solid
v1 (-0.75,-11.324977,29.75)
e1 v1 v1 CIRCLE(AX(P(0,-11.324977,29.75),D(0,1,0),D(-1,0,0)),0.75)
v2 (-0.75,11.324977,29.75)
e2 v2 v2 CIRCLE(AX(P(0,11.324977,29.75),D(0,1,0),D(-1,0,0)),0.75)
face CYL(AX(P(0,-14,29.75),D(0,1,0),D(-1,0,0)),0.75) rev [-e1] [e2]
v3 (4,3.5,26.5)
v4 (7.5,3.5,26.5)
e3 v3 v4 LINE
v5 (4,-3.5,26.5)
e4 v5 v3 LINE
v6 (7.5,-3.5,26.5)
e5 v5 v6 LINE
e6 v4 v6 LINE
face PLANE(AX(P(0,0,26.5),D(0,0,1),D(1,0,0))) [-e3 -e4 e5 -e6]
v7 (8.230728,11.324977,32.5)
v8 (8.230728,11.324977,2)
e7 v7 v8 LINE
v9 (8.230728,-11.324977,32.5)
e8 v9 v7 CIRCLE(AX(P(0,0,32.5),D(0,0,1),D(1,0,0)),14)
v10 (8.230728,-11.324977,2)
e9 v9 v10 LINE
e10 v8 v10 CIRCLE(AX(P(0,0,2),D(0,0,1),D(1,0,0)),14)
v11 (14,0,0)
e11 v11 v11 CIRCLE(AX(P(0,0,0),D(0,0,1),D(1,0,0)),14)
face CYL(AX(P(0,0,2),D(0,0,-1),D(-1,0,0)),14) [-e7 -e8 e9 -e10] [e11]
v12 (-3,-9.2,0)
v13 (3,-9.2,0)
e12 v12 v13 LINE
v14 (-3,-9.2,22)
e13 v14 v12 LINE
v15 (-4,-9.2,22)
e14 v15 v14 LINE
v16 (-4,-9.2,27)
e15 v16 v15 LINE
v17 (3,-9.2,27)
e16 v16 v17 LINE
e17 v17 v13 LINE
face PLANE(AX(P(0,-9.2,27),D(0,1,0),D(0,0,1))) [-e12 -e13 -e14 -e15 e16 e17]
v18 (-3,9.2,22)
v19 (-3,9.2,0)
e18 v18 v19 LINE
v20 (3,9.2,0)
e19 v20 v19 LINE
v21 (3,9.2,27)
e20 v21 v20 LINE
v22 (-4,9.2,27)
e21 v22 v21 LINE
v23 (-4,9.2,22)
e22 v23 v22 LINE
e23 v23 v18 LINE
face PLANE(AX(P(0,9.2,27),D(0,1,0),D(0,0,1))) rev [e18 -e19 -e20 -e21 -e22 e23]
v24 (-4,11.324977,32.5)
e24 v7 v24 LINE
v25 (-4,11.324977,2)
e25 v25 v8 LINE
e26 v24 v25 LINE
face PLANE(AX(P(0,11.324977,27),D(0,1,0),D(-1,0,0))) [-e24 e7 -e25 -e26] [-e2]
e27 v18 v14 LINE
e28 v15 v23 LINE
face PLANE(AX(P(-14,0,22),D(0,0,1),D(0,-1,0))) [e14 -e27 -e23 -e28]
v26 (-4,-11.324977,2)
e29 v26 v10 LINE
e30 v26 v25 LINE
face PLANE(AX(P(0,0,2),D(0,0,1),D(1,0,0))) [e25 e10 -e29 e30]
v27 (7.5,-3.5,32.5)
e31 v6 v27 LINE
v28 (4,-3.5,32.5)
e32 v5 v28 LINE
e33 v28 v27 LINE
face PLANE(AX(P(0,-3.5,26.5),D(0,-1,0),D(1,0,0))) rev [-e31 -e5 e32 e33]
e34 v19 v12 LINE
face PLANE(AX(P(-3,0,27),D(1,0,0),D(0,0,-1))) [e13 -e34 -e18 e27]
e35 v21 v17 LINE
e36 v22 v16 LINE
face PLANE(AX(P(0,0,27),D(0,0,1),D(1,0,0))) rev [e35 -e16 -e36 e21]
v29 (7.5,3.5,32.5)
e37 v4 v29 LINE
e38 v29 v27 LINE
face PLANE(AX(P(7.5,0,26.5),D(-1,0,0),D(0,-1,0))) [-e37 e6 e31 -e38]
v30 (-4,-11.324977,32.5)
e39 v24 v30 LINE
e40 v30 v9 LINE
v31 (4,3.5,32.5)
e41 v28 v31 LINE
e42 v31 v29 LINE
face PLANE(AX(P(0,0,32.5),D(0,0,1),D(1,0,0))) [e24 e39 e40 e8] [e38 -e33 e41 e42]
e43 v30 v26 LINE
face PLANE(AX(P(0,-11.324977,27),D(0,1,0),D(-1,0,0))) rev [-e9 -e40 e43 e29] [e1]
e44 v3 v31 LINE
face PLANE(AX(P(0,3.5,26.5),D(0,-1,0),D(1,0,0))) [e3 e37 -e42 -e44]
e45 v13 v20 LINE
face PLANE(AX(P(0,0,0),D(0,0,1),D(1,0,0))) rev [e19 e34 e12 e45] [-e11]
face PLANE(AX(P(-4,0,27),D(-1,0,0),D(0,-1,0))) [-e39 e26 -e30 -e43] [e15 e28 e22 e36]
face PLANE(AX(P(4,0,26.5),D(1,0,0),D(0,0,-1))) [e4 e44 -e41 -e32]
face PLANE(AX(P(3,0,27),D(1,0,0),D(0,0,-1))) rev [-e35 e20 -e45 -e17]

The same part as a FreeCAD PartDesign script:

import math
import FreeCAD as App
import Part
import Sketcher

V = App.Vector


def add_polygon(sketch, points):
    """Adds a closed chain of lines whose ends are joined by coincident constraints."""
    first, n = sketch.GeometryCount, len(points)
    for a, b in zip(points, points[1:] + points[:1]):
        sketch.addGeometry(Part.LineSegment(App.Vector(*a, 0), App.Vector(*b, 0)), False)
    for i in range(n):
        sketch.addConstraint(Sketcher.Constraint("Coincident", first + i, 2, first + (i + 1) % n, 1))

doc = App.newDocument("Part")
body = doc.addObject("PartDesign::Body", "Body")

# Sketch on XY plane
sketch1 = body.newObject("Sketcher::SketchObject", "Sketch")
sketch1.AttachmentSupport = (doc.getObject("XY_Plane"), [""])
sketch1.MapMode = "FlatFace"
sketch1.addGeometry(Part.Circle(V(0, 0, 0), V(0, 0, 1), 14), False)
sketch1.addConstraint(Sketcher.Constraint("Coincident", 0, 3, -1, 1))
sketch1.addConstraint(Sketcher.Constraint("Diameter", 0, 28.0))
pad1 = body.newObject("PartDesign::Pad", "Pad")
pad1.Profile = sketch1
pad1.Length = 2

# Sketch on XY plane
sketch2 = body.newObject("Sketcher::SketchObject", "Sketch001")
sketch2.AttachmentSupport = (doc.getObject("XY_Plane"), [""])
sketch2.MapMode = "FlatFace"
sketch2.AttachmentOffset = App.Placement(V(0, 0, 2), App.Rotation())
add_polygon(sketch2, [(-4, 11), (-4, -11), (4, -11), (4, 11)])  # lines 0-3
add_polygon(sketch2, [(3, -9), (-3, -9), (-3, 9), (3, 9)])  # lines 4-7
sketch2.addConstraint(Sketcher.Constraint("Vertical", 0))
sketch2.addConstraint(Sketcher.Constraint("Horizontal", 1))
sketch2.addConstraint(Sketcher.Constraint("Vertical", 2))
sketch2.addConstraint(Sketcher.Constraint("Horizontal", 3))
sketch2.addConstraint(Sketcher.Constraint("Horizontal", 4))
sketch2.addConstraint(Sketcher.Constraint("Vertical", 5))
sketch2.addConstraint(Sketcher.Constraint("Horizontal", 6))
sketch2.addConstraint(Sketcher.Constraint("Vertical", 7))
sketch2.addConstraint(Sketcher.Constraint("Symmetric", 0, 2, 2, 2, -1, 1))
sketch2.addConstraint(Sketcher.Constraint("Symmetric", 4, 2, 6, 2, -1, 1))
sketch2.addConstraint(Sketcher.Constraint("DistanceX", 1, 1, 1, 2, 8.0))
sketch2.addConstraint(Sketcher.Constraint("DistanceX", 4, 2, 4, 1, 6.0))
sketch2.addConstraint(Sketcher.Constraint("DistanceY", 5, 1, 5, 2, 18.4))
sketch2.addConstraint(Sketcher.Constraint("DistanceY", 0, 2, 0, 1, 22.649955))
pad2 = body.newObject("PartDesign::Pad", "Pad001")
pad2.Profile = sketch2
pad2.Length = 25

# Sketch on XY plane
sketch3 = body.newObject("Sketcher::SketchObject", "Sketch002")
sketch3.AttachmentSupport = (doc.getObject("XY_Plane"), [""])
sketch3.MapMode = "FlatFace"
sketch3.AttachmentOffset = App.Placement(V(0, 0, 27), App.Rotation())
add_polygon(sketch3, [(-4, 11), (-4, -11), (4, -11), (4, 11)])  # lines 0-3
sketch3.addConstraint(Sketcher.Constraint("Vertical", 0))
sketch3.addConstraint(Sketcher.Constraint("Horizontal", 1))
sketch3.addConstraint(Sketcher.Constraint("Vertical", 2))
sketch3.addConstraint(Sketcher.Constraint("Horizontal", 3))
sketch3.addConstraint(Sketcher.Constraint("Symmetric", 0, 2, 2, 2, -1, 1))
sketch3.addConstraint(Sketcher.Constraint("DistanceX", 1, 1, 1, 2, 8.0))
sketch3.addConstraint(Sketcher.Constraint("DistanceY", 0, 2, 0, 1, 22.649955))
pad3 = body.newObject("PartDesign::Pad", "Pad002")
pad3.Profile = sketch3
pad3.Length = 5.5

# Sketch on XY plane
sketch4 = body.newObject("Sketcher::SketchObject", "Sketch003")
sketch4.AttachmentSupport = (doc.getObject("XY_Plane"), [""])
sketch4.MapMode = "FlatFace"
sketch4.AttachmentOffset = App.Placement(V(0, 0, 2), App.Rotation())
add_polygon(sketch4, [(-3, 9), (-3, -9), (3, -9), (3, 9)])  # lines 0-3
sketch4.addConstraint(Sketcher.Constraint("Vertical", 0))
sketch4.addConstraint(Sketcher.Constraint("Horizontal", 1))
sketch4.addConstraint(Sketcher.Constraint("Vertical", 2))
sketch4.addConstraint(Sketcher.Constraint("Horizontal", 3))
sketch4.addConstraint(Sketcher.Constraint("Symmetric", 0, 2, 2, 2, -1, 1))
sketch4.addConstraint(Sketcher.Constraint("DistanceX", 1, 1, 1, 2, 6.0))
sketch4.addConstraint(Sketcher.Constraint("DistanceY", 0, 2, 0, 1, 18.4))
pocket1 = body.newObject("PartDesign::Pocket", "Pocket")
pocket1.Profile = sketch4
pocket1.Type = "ThroughAll"

# Sketch on YZ plane
sketch5 = body.newObject("Sketcher::SketchObject", "Sketch004")
sketch5.AttachmentSupport = (doc.getObject("YZ_Plane"), [""])
sketch5.MapMode = "FlatFace"
sketch5.AttachmentOffset = App.Placement(V(0, 0, 3), App.Rotation())
add_polygon(sketch5, [(9, 22), (-9, 22), (-9, 27), (9, 27)])  # lines 0-3
sketch5.addConstraint(Sketcher.Constraint("Horizontal", 0))
sketch5.addConstraint(Sketcher.Constraint("Vertical", 1))
sketch5.addConstraint(Sketcher.Constraint("Horizontal", 2))
sketch5.addConstraint(Sketcher.Constraint("Vertical", 3))
sketch5.addConstraint(Sketcher.Constraint("DistanceY", 1, 1, 1, 2, 5.0))
sketch5.addConstraint(Sketcher.Constraint("DistanceX", 0, 2, 0, 1, 18.4))
sketch5.addConstraint(Sketcher.Constraint("DistanceY", -1, 1, 0, 2, 22.0))
sketch5.addConstraint(Sketcher.Constraint("DistanceX", 0, 2, -1, 1, 9.2))
pocket2 = body.newObject("PartDesign::Pocket", "Pocket001")
pocket2.Profile = sketch5
pocket2.Type = "ThroughAll"

# Sketch on XZ plane
sketch6 = body.newObject("Sketcher::SketchObject", "Sketch005")
sketch6.AttachmentSupport = (doc.getObject("XZ_Plane"), [""])
sketch6.MapMode = "FlatFace"
sketch6.AttachmentOffset = App.Placement(V(0, 0, -11.324977), App.Rotation())
sketch6.addGeometry(Part.Circle(V(0, 29.8, 0), V(0, 0, 1), 0.8), False)
sketch6.addConstraint(Sketcher.Constraint("PointOnObject", 0, 3, -2))
sketch6.addConstraint(Sketcher.Constraint("Diameter", 0, 1.5))
sketch6.addConstraint(Sketcher.Constraint("DistanceY", -1, 1, 0, 3, 29.75))
pocket3 = body.newObject("PartDesign::Pocket", "Pocket002")
pocket3.Profile = sketch6
pocket3.Type = "ThroughAll"
pocket3.Reversed = True

# Sketch on XY plane
sketch7 = body.newObject("Sketcher::SketchObject", "Sketch006")
sketch7.AttachmentSupport = (doc.getObject("XY_Plane"), [""])
sketch7.MapMode = "FlatFace"
sketch7.AttachmentOffset = App.Placement(V(0, 0, 2), App.Rotation())
sketch7.addGeometry(Part.LineSegment(V(4, 11.3, 0), V(4, -11.3, 0)), False)
sketch7.addGeometry(Part.LineSegment(V(4, -11.3, 0), V(8.2, -11.3, 0)), False)
sketch7.addGeometry(Part.ArcOfCircle(Part.Circle(V(0, 0, 0), V(0, 0, 1), 14), math.radians(-54), math.radians(0)), False)
sketch7.addGeometry(Part.ArcOfCircle(Part.Circle(V(0, 0, 0), V(0, 0, 1), 14), math.radians(0), math.radians(54)), False)
sketch7.addGeometry(Part.LineSegment(V(8.2, 11.3, 0), V(4, 11.3, 0)), False)
sketch7.addConstraint(Sketcher.Constraint("Coincident", 0, 2, 1, 1))
sketch7.addConstraint(Sketcher.Constraint("Coincident", 1, 2, 2, 1))
sketch7.addConstraint(Sketcher.Constraint("Tangent", 2, 2, 3, 1))
sketch7.addConstraint(Sketcher.Constraint("Coincident", 3, 2, 4, 1))
sketch7.addConstraint(Sketcher.Constraint("Coincident", 4, 2, 0, 1))
sketch7.addConstraint(Sketcher.Constraint("Vertical", 0))
sketch7.addConstraint(Sketcher.Constraint("Horizontal", 1))
sketch7.addConstraint(Sketcher.Constraint("Horizontal", 4))
sketch7.addConstraint(Sketcher.Constraint("Coincident", 2, 3, -1, 1))
sketch7.addConstraint(Sketcher.Constraint("Equal", 2, 3))
sketch7.addConstraint(Sketcher.Constraint("PointOnObject", 2, 2, -1))
sketch7.addConstraint(Sketcher.Constraint("Vertical", 1, 2, 3, 2))
sketch7.addConstraint(Sketcher.Constraint("Radius", 2, 14.0))
sketch7.addConstraint(Sketcher.Constraint("DistanceX", -1, 1, 0, 2, 4.0))
sketch7.addConstraint(Sketcher.Constraint("DistanceX", 1, 1, 1, 2, 4.230728))
pad4 = body.newObject("PartDesign::Pad", "Pad003")
pad4.Profile = sketch7
pad4.Length = 30.5

# Sketch on XY plane
sketch8 = body.newObject("Sketcher::SketchObject", "Sketch007")
sketch8.AttachmentSupport = (doc.getObject("XY_Plane"), [""])
sketch8.MapMode = "FlatFace"
sketch8.AttachmentOffset = App.Placement(V(0, 0, 32.5), App.Rotation())
add_polygon(sketch8, [(4, 3.5), (4, -3.5), (7.5, -3.5), (7.5, 3.5)])  # lines 0-3
sketch8.addConstraint(Sketcher.Constraint("Vertical", 0))
sketch8.addConstraint(Sketcher.Constraint("Horizontal", 1))
sketch8.addConstraint(Sketcher.Constraint("Vertical", 2))
sketch8.addConstraint(Sketcher.Constraint("Horizontal", 3))
sketch8.addConstraint(Sketcher.Constraint("DistanceY", 0, 2, 0, 1, 7.0))
sketch8.addConstraint(Sketcher.Constraint("DistanceX", 1, 1, 1, 2, 3.5))
sketch8.addConstraint(Sketcher.Constraint("DistanceX", -1, 1, 0, 2, 4.0))
sketch8.addConstraint(Sketcher.Constraint("DistanceY", 0, 2, -1, 1, 3.5))
pocket4 = body.newObject("PartDesign::Pocket", "Pocket003")
pocket4.Profile = sketch8
pocket4.Length = 6

doc.recompute()
